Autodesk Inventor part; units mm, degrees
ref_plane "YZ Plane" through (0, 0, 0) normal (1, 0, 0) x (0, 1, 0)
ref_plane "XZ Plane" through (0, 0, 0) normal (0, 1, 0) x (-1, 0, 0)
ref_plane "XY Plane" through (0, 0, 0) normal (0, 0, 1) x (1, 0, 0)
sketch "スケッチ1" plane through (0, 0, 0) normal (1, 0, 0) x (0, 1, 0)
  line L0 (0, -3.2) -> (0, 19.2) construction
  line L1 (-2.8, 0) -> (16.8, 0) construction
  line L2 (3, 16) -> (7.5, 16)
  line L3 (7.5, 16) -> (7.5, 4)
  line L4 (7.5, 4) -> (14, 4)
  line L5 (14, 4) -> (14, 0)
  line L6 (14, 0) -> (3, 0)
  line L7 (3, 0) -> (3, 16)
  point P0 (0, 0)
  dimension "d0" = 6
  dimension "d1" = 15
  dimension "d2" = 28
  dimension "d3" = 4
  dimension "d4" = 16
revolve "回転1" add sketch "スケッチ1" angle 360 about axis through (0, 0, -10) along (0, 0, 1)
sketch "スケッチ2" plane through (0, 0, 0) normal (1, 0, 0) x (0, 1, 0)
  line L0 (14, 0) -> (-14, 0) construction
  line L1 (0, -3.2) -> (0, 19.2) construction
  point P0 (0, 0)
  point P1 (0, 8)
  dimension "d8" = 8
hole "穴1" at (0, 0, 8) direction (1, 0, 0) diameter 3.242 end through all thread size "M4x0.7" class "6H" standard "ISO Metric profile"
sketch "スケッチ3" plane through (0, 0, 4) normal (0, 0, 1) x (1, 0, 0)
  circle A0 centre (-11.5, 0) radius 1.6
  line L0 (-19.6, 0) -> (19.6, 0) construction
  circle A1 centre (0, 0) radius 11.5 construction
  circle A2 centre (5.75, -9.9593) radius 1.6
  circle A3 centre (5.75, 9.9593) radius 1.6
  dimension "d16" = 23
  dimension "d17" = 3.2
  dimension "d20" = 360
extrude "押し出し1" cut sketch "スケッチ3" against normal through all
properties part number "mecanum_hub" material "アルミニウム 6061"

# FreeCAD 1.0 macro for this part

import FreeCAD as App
import Part
import Sketcher

V = App.Vector

doc = App.newDocument("Part")
body = doc.addObject("PartDesign::Body", "Body")

# Sketch on YZ plane
sketch1 = body.newObject("Sketcher::SketchObject", "Sketch")
sketch1.AttachmentSupport = (doc.getObject("YZ_Plane"), [""])
sketch1.MapMode = "FlatFace"
sketch1.addGeometry([
    Part.LineSegment(V(7.5, 16, 0), V(3, 16, 0)),  # 0
    Part.LineSegment(V(3, 16, 0), V(3, 0, 0)),  # 1
    Part.LineSegment(V(3, 0, 0), V(14, 0, 0)),  # 2
    Part.LineSegment(V(14, 0, 0), V(14, 4, 0)),  # 3
    Part.LineSegment(V(14, 4, 0), V(7.5, 4, 0)),  # 4
    Part.LineSegment(V(7.5, 4, 0), V(7.5, 16, 0)),  # 5
], False)
sketch1.addConstraint([
    Sketcher.Constraint("Coincident", 0, 2, 1, 1),
    Sketcher.Constraint("Coincident", 1, 2, 2, 1),
    Sketcher.Constraint("Coincident", 2, 2, 3, 1),
    Sketcher.Constraint("Coincident", 3, 2, 4, 1),
    Sketcher.Constraint("Coincident", 4, 2, 5, 1),
    Sketcher.Constraint("Coincident", 5, 2, 0, 1),
    Sketcher.Constraint("Horizontal", 0),
    Sketcher.Constraint("Vertical", 1),
    Sketcher.Constraint("Horizontal", 2),
    Sketcher.Constraint("Vertical", 3),
    Sketcher.Constraint("Horizontal", 4),
    Sketcher.Constraint("Vertical", 5),
    Sketcher.Constraint("PointOnObject", 1, 2, -1),
    Sketcher.Constraint("DistanceY", 1, 2, 1, 1, 16.0),
    Sketcher.Constraint("DistanceY", 3, 1, 3, 2, 4.0),
    Sketcher.Constraint("DistanceX", 2, 1, 2, 2, 11.0),
    Sketcher.Constraint("DistanceX", 0, 2, 0, 1, 4.5),
    Sketcher.Constraint("DistanceX", -1, 1, 0, 2, 3.0),
])
revolution = body.newObject("PartDesign::Revolution", "Revolution")
revolution.Profile = sketch1
revolution.ReferenceAxis = (sketch1, ["V_Axis"])
revolution.Angle = 360

# Sketch on YZ plane
sketch2 = body.newObject("Sketcher::SketchObject", "Sketch001")
sketch2.AttachmentSupport = (doc.getObject("YZ_Plane"), [""])
sketch2.MapMode = "FlatFace"
sketch2.addGeometry(Part.Circle(V(0, 8, 0), V(0, 0, 1), 1.621), False)
sketch2.addConstraint([
    Sketcher.Constraint("PointOnObject", 0, 3, -2),
    Sketcher.Constraint("Diameter", 0, 3.242),
    Sketcher.Constraint("DistanceY", -1, 1, 0, 3, 8.0),
])
doc.recompute()
hole = body.newObject("PartDesign::Hole", "Hole")
hole.Profile = sketch2
hole.ThreadType = "None"
hole.Diameter = 3.242
hole.DepthType = "ThroughAll"
hole.Reversed = True

# Sketch on XY plane
sketch3 = body.newObject("Sketcher::SketchObject", "Sketch002")
sketch3.AttachmentSupport = (doc.getObject("XY_Plane"), [""])
sketch3.MapMode = "FlatFace"
sketch3.AttachmentOffset = App.Placement(V(0, 0, 4), App.Rotation())
sketch3.addGeometry([
    Part.Circle(V(-11.5, 0, 0), V(0, 0, 1), 1.6),
    Part.Circle(V(5.75, -9.9593, 0), V(0, 0, 1), 1.6),
    Part.Circle(V(5.75, 9.9593, 0), V(0, 0, 1), 1.6),
], False)
sketch3.addConstraint([
    Sketcher.Constraint("Equal", 0, 1),
    Sketcher.Constraint("Equal", 1, 2),
    Sketcher.Constraint("Symmetric", 1, 3, 2, 3, -1),
    Sketcher.Constraint("PointOnObject", 0, 3, -1),
    Sketcher.Constraint("Diameter", 0, 3.2),
    Sketcher.Constraint("DistanceX", 0, 3, -1, 1, 11.5),
    Sketcher.Constraint("DistanceX", -1, 1, 1, 3, 5.75),
    Sketcher.Constraint("DistanceY", 1, 3, -1, 1, 9.9593),
])
pocket1 = body.newObject("PartDesign::Pocket", "Pocket")
pocket1.Profile = sketch3
pocket1.Type = "ThroughAll"

doc.recompute()
